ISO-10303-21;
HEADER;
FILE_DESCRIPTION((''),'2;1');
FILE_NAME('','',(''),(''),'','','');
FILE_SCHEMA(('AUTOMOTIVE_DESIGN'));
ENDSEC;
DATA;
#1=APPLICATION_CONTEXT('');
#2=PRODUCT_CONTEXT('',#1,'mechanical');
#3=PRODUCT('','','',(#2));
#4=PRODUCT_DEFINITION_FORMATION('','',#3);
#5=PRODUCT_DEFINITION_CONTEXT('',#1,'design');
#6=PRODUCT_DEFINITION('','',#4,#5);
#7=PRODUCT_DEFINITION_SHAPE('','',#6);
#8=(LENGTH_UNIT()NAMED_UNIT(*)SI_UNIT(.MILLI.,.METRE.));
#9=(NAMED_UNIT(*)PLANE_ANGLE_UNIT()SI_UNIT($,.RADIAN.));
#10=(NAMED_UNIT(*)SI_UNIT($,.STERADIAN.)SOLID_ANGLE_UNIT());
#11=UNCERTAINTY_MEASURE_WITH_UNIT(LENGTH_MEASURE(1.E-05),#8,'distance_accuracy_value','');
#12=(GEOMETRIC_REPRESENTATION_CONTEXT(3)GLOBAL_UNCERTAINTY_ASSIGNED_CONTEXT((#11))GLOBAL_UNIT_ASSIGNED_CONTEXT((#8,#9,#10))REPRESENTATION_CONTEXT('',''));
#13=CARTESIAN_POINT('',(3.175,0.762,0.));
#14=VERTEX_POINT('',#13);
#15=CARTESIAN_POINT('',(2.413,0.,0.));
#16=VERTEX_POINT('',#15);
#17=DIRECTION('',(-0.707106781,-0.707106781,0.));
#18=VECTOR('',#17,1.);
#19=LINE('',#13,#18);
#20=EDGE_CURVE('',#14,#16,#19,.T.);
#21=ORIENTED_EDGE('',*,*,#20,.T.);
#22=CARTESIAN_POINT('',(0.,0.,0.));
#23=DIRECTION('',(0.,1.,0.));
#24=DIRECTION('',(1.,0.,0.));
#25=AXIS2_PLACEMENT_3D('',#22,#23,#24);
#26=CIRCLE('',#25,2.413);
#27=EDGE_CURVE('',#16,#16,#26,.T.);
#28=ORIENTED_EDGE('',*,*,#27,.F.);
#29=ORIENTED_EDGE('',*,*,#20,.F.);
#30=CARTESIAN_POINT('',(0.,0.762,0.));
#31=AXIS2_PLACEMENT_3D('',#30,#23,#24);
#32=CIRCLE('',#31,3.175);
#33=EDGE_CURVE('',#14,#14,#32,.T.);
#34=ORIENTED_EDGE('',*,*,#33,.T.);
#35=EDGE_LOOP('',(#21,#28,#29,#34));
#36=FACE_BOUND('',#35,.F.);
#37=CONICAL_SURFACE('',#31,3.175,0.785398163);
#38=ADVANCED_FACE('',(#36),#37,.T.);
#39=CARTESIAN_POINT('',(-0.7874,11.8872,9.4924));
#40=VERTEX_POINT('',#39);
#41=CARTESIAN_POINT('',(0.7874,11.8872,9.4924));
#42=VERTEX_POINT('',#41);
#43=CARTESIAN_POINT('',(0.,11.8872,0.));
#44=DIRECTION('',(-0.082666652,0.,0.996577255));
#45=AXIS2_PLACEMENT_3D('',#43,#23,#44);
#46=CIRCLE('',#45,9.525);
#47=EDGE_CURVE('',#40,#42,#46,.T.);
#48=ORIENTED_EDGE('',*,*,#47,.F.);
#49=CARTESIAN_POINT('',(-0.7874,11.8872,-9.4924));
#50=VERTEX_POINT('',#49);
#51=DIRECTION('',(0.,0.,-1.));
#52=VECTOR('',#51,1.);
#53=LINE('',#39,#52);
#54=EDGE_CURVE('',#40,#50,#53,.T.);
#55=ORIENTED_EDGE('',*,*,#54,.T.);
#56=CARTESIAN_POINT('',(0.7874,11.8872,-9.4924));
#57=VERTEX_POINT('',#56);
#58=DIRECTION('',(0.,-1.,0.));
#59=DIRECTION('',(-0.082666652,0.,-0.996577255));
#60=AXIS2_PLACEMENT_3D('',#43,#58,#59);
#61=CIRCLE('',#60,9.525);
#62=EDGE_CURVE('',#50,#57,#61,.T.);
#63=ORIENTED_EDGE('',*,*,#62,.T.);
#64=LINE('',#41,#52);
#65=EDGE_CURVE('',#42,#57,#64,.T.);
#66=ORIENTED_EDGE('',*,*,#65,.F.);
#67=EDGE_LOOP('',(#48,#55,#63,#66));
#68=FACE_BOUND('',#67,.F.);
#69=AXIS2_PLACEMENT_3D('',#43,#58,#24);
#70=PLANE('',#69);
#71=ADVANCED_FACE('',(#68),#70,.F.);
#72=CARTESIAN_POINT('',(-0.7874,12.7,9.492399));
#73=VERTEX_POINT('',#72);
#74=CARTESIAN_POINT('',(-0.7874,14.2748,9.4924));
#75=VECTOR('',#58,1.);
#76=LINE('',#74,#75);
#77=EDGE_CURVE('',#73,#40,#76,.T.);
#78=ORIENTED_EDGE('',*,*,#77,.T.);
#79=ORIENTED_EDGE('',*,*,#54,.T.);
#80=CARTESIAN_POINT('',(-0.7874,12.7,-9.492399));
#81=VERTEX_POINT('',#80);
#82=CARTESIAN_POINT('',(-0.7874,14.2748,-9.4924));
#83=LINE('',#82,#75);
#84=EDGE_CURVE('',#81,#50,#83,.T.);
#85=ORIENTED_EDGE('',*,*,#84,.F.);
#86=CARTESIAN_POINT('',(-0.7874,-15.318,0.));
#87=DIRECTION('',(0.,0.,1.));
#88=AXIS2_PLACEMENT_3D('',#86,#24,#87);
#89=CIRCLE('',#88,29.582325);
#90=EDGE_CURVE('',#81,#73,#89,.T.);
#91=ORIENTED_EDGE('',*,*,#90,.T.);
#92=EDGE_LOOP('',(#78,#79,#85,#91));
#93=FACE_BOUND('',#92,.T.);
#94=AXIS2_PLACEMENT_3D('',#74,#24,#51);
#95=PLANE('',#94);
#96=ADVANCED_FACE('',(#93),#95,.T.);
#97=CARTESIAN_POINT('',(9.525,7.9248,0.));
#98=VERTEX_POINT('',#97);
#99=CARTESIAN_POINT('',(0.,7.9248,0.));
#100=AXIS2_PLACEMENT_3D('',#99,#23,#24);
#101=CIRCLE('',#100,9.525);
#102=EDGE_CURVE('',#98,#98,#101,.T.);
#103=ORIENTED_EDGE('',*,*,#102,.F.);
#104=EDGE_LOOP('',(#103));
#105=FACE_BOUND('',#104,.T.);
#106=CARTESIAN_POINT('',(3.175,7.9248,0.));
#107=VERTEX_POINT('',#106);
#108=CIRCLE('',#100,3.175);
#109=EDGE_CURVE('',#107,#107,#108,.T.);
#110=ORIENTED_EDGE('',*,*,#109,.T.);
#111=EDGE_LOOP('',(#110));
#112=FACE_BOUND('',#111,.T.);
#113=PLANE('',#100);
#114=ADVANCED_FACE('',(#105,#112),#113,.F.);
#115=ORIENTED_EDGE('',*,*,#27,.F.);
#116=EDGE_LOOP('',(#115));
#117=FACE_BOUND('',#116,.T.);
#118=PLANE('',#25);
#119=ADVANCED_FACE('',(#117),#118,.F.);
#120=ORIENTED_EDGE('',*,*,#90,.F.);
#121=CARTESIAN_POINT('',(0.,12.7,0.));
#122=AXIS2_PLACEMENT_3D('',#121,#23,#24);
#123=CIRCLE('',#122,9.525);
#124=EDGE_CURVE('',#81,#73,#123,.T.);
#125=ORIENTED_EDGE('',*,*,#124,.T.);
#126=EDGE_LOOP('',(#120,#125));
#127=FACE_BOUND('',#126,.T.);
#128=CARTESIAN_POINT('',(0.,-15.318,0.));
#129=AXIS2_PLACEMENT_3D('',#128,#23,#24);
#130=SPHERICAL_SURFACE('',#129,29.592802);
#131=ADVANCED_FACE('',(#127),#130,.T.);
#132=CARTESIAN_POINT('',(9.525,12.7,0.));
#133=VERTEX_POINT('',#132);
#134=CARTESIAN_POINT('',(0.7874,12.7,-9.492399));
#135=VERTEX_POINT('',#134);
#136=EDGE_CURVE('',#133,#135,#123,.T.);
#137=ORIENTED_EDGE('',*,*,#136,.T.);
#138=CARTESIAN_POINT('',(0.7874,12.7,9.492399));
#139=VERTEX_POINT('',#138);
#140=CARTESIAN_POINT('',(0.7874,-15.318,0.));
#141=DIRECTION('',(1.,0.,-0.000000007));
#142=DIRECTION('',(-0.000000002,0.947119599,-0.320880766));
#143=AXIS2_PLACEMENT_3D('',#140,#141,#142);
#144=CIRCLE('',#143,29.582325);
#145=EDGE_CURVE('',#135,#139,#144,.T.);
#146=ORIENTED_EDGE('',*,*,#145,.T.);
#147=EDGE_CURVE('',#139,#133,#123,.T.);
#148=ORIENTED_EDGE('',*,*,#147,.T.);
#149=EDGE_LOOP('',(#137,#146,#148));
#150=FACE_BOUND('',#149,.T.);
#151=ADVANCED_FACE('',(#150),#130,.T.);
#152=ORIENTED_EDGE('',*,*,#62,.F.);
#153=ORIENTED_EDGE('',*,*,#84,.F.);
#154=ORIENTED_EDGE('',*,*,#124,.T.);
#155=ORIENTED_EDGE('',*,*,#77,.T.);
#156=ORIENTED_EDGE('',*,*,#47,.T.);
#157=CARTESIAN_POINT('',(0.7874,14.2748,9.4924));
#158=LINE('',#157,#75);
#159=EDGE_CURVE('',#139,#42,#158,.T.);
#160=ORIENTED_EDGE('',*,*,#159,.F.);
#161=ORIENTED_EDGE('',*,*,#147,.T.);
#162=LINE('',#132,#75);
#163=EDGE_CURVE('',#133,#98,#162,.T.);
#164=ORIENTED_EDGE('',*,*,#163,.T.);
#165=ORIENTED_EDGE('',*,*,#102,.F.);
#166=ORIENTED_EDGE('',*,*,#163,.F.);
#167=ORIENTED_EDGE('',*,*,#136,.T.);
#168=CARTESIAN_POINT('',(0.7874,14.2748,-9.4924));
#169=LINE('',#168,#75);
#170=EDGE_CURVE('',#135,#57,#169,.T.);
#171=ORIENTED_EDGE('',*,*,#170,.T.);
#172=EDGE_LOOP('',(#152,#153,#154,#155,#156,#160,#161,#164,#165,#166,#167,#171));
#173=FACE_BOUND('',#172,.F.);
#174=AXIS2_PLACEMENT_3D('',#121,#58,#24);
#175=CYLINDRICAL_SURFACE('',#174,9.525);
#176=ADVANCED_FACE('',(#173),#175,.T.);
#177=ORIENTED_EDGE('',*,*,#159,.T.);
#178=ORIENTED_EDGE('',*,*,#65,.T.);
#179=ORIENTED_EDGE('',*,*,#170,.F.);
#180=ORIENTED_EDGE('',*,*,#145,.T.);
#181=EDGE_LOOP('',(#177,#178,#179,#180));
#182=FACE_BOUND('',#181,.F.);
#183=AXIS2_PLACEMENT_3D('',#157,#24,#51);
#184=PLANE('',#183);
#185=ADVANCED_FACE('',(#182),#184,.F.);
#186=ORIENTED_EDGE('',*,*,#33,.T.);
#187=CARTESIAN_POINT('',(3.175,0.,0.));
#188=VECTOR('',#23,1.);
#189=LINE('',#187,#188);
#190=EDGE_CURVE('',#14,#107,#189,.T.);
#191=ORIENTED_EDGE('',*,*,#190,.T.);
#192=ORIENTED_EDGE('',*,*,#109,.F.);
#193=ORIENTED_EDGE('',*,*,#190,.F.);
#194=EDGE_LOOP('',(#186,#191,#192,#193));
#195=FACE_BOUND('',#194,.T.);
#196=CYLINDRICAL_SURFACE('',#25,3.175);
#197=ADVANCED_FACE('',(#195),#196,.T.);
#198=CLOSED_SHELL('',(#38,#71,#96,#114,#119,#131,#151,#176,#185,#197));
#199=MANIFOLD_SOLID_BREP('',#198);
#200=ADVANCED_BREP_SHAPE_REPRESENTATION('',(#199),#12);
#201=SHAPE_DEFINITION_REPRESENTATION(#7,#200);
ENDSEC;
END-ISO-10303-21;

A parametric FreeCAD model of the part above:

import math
import FreeCAD as App
import Part
import Sketcher
from FreeCAD import Vector
Q = App.Units.Quantity


def edges_at(feature, points):
    """Names of the edges that pass closest to the given points."""
    edges = feature.Shape.Edges
    near = lambda p: min(range(len(edges)), key=lambda i: edges[i].distToShape(Part.Vertex(*p))[0])
    return sorted({f"Edge{near(p) + 1}" for p in points})

doc = App.newDocument("Part")
params = doc.addObject("Spreadsheet::Sheet", "Params")
for row, (alias, value) in enumerate([
    ("sketch1_width", "0.25 in"),
    ("sketch1_width2", "0.125 in"),
    ("sketch1_height", "0.188 in"),
    ("sketch1_height2", "0.562 in"),
    ("revolution_angle", "360 deg"),
    ("sketch2_radius", "0.375 in"),
    ("pocket1_length", "0.094 in"),
    ("chamfer_size", "0.03 in"),
], start=1):
    params.set(f"A{row}", alias)
    params.set(f"B{row}", "=" + value)
    params.setAlias(f"B{row}", alias)

body = doc.addObject("PartDesign::Body", "Body")

sketch1 = body.newObject("Sketcher::SketchObject", "Sketch")
sketch1.AttachmentSupport = (doc.getObject("XY_Plane"), [""])
sketch1.MapMode = "FlatFace"
sketch1.addGeometry(Part.LineSegment(Vector(0, 0, 0), Vector(3.175, 0, 0)), False)
sketch1.addGeometry(Part.LineSegment(Vector(3.175, 0, 0), Vector(3.175, 7.9248, 0)), False)
sketch1.addGeometry(Part.LineSegment(Vector(3.175, 7.9248, 0), Vector(9.525, 7.9248, 0)), False)
sketch1.addGeometry(Part.LineSegment(Vector(9.525, 7.9248, 0), Vector(9.525, 12.7, 0)), False)
sketch1.addGeometry(Part.ArcOfCircle(Part.Circle(Vector(0, -15.318, 0), Vector(0, 0, 1), 29.592802), math.radians(71.22402), math.radians(90)), False)
sketch1.addGeometry(Part.LineSegment(Vector(0, 14.2748, 0), Vector(0, 0, 0)), False)
sketch1.addConstraint(Sketcher.Constraint("Coincident", 0, 2, 1, 1))
sketch1.addConstraint(Sketcher.Constraint("Coincident", 1, 2, 2, 1))
sketch1.addConstraint(Sketcher.Constraint("Coincident", 2, 2, 3, 1))
sketch1.addConstraint(Sketcher.Constraint("Coincident", 3, 2, 4, 1))
sketch1.addConstraint(Sketcher.Constraint("Coincident", 4, 2, 5, 1))
sketch1.addConstraint(Sketcher.Constraint("Coincident", 5, 2, 0, 1))
sketch1.addConstraint(Sketcher.Constraint("Horizontal", 0))
sketch1.addConstraint(Sketcher.Constraint("Vertical", 1))
sketch1.addConstraint(Sketcher.Constraint("Horizontal", 2))
sketch1.addConstraint(Sketcher.Constraint("Vertical", 3))
sketch1.addConstraint(Sketcher.Constraint("Vertical", 5))
sketch1.addConstraint(Sketcher.Constraint("Coincident", 5, 2, -1, 1))
sketch1.addConstraint(Sketcher.Constraint("PointOnObject", 4, 3, -2))
sketch1.addConstraint(Sketcher.Constraint("DistanceX", 2, 1, 2, 2, Q("0.25 in")))
sketch1.addConstraint(Sketcher.Constraint("DistanceX", 0, 1, 0, 2, Q("0.125 in")))
sketch1.addConstraint(Sketcher.Constraint("DistanceY", 3, 1, 3, 2, Q("0.188 in")))
sketch1.addConstraint(Sketcher.Constraint("DistanceY", 5, 2, 5, 1, Q("0.562 in")))
sketch1.addConstraint(Sketcher.Constraint("DistanceY", 1, 2, 4, 2, Q("0.25 in")))
sketch1.setExpression("Constraints[13]", "Params.sketch1_width")
sketch1.setExpression("Constraints[14]", "Params.sketch1_width2")
sketch1.setExpression("Constraints[15]", "Params.sketch1_height")
sketch1.setExpression("Constraints[16]", "Params.sketch1_height2")
revolution = body.newObject("PartDesign::Revolution", "Revolution")
revolution.Profile = sketch1
revolution.ReferenceAxis = (sketch1, ["V_Axis"])
revolution.setExpression("Angle", "Params.revolution_angle")

sketch2 = body.newObject("Sketcher::SketchObject", "Sketch001")
sketch2.AttachmentSupport = (doc.getObject("XZ_Plane"), [""])
sketch2.MapMode = "FlatFace"
sketch2.AttachmentOffset = App.Placement(Vector(0, 0, -0.562 * 25.4), App.Rotation())
sketch2.addGeometry(Part.ArcOfCircle(Part.Circle(Vector(0, 0, 0), Vector(0, 0, 1), 9.525), math.radians(85.258138), math.radians(94.741862)), False)
sketch2.addGeometry(Part.LineSegment(Vector(-0.7874, 9.4924, 0), Vector(-0.7874, -9.4924, 0)), False)
sketch2.addGeometry(Part.ArcOfCircle(Part.Circle(Vector(0, 0, 0), Vector(0, 0, 1), 9.525), math.radians(-94.741862), math.radians(-85.258138)), False)
sketch2.addGeometry(Part.LineSegment(Vector(0.7874, -9.4924, 0), Vector(0.7874, 9.4924, 0)), False)
sketch2.addConstraint(Sketcher.Constraint("Coincident", 0, 2, 1, 1))
sketch2.addConstraint(Sketcher.Constraint("Coincident", 1, 2, 2, 1))
sketch2.addConstraint(Sketcher.Constraint("Coincident", 2, 2, 3, 1))
sketch2.addConstraint(Sketcher.Constraint("Coincident", 3, 2, 0, 1))
sketch2.addConstraint(Sketcher.Constraint("Vertical", 1))
sketch2.addConstraint(Sketcher.Constraint("Vertical", 3))
sketch2.addConstraint(Sketcher.Constraint("Coincident", 0, 3, -1, 1))
sketch2.addConstraint(Sketcher.Constraint("Coincident", 2, 3, -1, 1))
sketch2.addConstraint(Sketcher.Constraint("Equal", 0, 2))
sketch2.addConstraint(Sketcher.Constraint("Horizontal", 1, 2, 2, 2))
sketch2.addConstraint(Sketcher.Constraint("Radius", 0, Q("0.375 in")))
sketch2.addConstraint(Sketcher.Constraint("DistanceX", 1, 2, 2, 2, Q("0.062 in")))
sketch2.setExpression("Constraints[10]", "Params.sketch2_radius")
pocket1 = body.newObject("PartDesign::Pocket", "Pocket")
pocket1.Profile = sketch2
pocket1.setExpression("Length", "Params.pocket1_length")
pocket1.Reversed = True
doc.recompute()

chamfer = body.newObject("PartDesign::Chamfer", "Chamfer")
chamfer.Base = (pocket1, edges_at(pocket1, [(-3.175, 0, 0)]))
chamfer.setExpression("Size", "Params.chamfer_size")

doc.recompute()
